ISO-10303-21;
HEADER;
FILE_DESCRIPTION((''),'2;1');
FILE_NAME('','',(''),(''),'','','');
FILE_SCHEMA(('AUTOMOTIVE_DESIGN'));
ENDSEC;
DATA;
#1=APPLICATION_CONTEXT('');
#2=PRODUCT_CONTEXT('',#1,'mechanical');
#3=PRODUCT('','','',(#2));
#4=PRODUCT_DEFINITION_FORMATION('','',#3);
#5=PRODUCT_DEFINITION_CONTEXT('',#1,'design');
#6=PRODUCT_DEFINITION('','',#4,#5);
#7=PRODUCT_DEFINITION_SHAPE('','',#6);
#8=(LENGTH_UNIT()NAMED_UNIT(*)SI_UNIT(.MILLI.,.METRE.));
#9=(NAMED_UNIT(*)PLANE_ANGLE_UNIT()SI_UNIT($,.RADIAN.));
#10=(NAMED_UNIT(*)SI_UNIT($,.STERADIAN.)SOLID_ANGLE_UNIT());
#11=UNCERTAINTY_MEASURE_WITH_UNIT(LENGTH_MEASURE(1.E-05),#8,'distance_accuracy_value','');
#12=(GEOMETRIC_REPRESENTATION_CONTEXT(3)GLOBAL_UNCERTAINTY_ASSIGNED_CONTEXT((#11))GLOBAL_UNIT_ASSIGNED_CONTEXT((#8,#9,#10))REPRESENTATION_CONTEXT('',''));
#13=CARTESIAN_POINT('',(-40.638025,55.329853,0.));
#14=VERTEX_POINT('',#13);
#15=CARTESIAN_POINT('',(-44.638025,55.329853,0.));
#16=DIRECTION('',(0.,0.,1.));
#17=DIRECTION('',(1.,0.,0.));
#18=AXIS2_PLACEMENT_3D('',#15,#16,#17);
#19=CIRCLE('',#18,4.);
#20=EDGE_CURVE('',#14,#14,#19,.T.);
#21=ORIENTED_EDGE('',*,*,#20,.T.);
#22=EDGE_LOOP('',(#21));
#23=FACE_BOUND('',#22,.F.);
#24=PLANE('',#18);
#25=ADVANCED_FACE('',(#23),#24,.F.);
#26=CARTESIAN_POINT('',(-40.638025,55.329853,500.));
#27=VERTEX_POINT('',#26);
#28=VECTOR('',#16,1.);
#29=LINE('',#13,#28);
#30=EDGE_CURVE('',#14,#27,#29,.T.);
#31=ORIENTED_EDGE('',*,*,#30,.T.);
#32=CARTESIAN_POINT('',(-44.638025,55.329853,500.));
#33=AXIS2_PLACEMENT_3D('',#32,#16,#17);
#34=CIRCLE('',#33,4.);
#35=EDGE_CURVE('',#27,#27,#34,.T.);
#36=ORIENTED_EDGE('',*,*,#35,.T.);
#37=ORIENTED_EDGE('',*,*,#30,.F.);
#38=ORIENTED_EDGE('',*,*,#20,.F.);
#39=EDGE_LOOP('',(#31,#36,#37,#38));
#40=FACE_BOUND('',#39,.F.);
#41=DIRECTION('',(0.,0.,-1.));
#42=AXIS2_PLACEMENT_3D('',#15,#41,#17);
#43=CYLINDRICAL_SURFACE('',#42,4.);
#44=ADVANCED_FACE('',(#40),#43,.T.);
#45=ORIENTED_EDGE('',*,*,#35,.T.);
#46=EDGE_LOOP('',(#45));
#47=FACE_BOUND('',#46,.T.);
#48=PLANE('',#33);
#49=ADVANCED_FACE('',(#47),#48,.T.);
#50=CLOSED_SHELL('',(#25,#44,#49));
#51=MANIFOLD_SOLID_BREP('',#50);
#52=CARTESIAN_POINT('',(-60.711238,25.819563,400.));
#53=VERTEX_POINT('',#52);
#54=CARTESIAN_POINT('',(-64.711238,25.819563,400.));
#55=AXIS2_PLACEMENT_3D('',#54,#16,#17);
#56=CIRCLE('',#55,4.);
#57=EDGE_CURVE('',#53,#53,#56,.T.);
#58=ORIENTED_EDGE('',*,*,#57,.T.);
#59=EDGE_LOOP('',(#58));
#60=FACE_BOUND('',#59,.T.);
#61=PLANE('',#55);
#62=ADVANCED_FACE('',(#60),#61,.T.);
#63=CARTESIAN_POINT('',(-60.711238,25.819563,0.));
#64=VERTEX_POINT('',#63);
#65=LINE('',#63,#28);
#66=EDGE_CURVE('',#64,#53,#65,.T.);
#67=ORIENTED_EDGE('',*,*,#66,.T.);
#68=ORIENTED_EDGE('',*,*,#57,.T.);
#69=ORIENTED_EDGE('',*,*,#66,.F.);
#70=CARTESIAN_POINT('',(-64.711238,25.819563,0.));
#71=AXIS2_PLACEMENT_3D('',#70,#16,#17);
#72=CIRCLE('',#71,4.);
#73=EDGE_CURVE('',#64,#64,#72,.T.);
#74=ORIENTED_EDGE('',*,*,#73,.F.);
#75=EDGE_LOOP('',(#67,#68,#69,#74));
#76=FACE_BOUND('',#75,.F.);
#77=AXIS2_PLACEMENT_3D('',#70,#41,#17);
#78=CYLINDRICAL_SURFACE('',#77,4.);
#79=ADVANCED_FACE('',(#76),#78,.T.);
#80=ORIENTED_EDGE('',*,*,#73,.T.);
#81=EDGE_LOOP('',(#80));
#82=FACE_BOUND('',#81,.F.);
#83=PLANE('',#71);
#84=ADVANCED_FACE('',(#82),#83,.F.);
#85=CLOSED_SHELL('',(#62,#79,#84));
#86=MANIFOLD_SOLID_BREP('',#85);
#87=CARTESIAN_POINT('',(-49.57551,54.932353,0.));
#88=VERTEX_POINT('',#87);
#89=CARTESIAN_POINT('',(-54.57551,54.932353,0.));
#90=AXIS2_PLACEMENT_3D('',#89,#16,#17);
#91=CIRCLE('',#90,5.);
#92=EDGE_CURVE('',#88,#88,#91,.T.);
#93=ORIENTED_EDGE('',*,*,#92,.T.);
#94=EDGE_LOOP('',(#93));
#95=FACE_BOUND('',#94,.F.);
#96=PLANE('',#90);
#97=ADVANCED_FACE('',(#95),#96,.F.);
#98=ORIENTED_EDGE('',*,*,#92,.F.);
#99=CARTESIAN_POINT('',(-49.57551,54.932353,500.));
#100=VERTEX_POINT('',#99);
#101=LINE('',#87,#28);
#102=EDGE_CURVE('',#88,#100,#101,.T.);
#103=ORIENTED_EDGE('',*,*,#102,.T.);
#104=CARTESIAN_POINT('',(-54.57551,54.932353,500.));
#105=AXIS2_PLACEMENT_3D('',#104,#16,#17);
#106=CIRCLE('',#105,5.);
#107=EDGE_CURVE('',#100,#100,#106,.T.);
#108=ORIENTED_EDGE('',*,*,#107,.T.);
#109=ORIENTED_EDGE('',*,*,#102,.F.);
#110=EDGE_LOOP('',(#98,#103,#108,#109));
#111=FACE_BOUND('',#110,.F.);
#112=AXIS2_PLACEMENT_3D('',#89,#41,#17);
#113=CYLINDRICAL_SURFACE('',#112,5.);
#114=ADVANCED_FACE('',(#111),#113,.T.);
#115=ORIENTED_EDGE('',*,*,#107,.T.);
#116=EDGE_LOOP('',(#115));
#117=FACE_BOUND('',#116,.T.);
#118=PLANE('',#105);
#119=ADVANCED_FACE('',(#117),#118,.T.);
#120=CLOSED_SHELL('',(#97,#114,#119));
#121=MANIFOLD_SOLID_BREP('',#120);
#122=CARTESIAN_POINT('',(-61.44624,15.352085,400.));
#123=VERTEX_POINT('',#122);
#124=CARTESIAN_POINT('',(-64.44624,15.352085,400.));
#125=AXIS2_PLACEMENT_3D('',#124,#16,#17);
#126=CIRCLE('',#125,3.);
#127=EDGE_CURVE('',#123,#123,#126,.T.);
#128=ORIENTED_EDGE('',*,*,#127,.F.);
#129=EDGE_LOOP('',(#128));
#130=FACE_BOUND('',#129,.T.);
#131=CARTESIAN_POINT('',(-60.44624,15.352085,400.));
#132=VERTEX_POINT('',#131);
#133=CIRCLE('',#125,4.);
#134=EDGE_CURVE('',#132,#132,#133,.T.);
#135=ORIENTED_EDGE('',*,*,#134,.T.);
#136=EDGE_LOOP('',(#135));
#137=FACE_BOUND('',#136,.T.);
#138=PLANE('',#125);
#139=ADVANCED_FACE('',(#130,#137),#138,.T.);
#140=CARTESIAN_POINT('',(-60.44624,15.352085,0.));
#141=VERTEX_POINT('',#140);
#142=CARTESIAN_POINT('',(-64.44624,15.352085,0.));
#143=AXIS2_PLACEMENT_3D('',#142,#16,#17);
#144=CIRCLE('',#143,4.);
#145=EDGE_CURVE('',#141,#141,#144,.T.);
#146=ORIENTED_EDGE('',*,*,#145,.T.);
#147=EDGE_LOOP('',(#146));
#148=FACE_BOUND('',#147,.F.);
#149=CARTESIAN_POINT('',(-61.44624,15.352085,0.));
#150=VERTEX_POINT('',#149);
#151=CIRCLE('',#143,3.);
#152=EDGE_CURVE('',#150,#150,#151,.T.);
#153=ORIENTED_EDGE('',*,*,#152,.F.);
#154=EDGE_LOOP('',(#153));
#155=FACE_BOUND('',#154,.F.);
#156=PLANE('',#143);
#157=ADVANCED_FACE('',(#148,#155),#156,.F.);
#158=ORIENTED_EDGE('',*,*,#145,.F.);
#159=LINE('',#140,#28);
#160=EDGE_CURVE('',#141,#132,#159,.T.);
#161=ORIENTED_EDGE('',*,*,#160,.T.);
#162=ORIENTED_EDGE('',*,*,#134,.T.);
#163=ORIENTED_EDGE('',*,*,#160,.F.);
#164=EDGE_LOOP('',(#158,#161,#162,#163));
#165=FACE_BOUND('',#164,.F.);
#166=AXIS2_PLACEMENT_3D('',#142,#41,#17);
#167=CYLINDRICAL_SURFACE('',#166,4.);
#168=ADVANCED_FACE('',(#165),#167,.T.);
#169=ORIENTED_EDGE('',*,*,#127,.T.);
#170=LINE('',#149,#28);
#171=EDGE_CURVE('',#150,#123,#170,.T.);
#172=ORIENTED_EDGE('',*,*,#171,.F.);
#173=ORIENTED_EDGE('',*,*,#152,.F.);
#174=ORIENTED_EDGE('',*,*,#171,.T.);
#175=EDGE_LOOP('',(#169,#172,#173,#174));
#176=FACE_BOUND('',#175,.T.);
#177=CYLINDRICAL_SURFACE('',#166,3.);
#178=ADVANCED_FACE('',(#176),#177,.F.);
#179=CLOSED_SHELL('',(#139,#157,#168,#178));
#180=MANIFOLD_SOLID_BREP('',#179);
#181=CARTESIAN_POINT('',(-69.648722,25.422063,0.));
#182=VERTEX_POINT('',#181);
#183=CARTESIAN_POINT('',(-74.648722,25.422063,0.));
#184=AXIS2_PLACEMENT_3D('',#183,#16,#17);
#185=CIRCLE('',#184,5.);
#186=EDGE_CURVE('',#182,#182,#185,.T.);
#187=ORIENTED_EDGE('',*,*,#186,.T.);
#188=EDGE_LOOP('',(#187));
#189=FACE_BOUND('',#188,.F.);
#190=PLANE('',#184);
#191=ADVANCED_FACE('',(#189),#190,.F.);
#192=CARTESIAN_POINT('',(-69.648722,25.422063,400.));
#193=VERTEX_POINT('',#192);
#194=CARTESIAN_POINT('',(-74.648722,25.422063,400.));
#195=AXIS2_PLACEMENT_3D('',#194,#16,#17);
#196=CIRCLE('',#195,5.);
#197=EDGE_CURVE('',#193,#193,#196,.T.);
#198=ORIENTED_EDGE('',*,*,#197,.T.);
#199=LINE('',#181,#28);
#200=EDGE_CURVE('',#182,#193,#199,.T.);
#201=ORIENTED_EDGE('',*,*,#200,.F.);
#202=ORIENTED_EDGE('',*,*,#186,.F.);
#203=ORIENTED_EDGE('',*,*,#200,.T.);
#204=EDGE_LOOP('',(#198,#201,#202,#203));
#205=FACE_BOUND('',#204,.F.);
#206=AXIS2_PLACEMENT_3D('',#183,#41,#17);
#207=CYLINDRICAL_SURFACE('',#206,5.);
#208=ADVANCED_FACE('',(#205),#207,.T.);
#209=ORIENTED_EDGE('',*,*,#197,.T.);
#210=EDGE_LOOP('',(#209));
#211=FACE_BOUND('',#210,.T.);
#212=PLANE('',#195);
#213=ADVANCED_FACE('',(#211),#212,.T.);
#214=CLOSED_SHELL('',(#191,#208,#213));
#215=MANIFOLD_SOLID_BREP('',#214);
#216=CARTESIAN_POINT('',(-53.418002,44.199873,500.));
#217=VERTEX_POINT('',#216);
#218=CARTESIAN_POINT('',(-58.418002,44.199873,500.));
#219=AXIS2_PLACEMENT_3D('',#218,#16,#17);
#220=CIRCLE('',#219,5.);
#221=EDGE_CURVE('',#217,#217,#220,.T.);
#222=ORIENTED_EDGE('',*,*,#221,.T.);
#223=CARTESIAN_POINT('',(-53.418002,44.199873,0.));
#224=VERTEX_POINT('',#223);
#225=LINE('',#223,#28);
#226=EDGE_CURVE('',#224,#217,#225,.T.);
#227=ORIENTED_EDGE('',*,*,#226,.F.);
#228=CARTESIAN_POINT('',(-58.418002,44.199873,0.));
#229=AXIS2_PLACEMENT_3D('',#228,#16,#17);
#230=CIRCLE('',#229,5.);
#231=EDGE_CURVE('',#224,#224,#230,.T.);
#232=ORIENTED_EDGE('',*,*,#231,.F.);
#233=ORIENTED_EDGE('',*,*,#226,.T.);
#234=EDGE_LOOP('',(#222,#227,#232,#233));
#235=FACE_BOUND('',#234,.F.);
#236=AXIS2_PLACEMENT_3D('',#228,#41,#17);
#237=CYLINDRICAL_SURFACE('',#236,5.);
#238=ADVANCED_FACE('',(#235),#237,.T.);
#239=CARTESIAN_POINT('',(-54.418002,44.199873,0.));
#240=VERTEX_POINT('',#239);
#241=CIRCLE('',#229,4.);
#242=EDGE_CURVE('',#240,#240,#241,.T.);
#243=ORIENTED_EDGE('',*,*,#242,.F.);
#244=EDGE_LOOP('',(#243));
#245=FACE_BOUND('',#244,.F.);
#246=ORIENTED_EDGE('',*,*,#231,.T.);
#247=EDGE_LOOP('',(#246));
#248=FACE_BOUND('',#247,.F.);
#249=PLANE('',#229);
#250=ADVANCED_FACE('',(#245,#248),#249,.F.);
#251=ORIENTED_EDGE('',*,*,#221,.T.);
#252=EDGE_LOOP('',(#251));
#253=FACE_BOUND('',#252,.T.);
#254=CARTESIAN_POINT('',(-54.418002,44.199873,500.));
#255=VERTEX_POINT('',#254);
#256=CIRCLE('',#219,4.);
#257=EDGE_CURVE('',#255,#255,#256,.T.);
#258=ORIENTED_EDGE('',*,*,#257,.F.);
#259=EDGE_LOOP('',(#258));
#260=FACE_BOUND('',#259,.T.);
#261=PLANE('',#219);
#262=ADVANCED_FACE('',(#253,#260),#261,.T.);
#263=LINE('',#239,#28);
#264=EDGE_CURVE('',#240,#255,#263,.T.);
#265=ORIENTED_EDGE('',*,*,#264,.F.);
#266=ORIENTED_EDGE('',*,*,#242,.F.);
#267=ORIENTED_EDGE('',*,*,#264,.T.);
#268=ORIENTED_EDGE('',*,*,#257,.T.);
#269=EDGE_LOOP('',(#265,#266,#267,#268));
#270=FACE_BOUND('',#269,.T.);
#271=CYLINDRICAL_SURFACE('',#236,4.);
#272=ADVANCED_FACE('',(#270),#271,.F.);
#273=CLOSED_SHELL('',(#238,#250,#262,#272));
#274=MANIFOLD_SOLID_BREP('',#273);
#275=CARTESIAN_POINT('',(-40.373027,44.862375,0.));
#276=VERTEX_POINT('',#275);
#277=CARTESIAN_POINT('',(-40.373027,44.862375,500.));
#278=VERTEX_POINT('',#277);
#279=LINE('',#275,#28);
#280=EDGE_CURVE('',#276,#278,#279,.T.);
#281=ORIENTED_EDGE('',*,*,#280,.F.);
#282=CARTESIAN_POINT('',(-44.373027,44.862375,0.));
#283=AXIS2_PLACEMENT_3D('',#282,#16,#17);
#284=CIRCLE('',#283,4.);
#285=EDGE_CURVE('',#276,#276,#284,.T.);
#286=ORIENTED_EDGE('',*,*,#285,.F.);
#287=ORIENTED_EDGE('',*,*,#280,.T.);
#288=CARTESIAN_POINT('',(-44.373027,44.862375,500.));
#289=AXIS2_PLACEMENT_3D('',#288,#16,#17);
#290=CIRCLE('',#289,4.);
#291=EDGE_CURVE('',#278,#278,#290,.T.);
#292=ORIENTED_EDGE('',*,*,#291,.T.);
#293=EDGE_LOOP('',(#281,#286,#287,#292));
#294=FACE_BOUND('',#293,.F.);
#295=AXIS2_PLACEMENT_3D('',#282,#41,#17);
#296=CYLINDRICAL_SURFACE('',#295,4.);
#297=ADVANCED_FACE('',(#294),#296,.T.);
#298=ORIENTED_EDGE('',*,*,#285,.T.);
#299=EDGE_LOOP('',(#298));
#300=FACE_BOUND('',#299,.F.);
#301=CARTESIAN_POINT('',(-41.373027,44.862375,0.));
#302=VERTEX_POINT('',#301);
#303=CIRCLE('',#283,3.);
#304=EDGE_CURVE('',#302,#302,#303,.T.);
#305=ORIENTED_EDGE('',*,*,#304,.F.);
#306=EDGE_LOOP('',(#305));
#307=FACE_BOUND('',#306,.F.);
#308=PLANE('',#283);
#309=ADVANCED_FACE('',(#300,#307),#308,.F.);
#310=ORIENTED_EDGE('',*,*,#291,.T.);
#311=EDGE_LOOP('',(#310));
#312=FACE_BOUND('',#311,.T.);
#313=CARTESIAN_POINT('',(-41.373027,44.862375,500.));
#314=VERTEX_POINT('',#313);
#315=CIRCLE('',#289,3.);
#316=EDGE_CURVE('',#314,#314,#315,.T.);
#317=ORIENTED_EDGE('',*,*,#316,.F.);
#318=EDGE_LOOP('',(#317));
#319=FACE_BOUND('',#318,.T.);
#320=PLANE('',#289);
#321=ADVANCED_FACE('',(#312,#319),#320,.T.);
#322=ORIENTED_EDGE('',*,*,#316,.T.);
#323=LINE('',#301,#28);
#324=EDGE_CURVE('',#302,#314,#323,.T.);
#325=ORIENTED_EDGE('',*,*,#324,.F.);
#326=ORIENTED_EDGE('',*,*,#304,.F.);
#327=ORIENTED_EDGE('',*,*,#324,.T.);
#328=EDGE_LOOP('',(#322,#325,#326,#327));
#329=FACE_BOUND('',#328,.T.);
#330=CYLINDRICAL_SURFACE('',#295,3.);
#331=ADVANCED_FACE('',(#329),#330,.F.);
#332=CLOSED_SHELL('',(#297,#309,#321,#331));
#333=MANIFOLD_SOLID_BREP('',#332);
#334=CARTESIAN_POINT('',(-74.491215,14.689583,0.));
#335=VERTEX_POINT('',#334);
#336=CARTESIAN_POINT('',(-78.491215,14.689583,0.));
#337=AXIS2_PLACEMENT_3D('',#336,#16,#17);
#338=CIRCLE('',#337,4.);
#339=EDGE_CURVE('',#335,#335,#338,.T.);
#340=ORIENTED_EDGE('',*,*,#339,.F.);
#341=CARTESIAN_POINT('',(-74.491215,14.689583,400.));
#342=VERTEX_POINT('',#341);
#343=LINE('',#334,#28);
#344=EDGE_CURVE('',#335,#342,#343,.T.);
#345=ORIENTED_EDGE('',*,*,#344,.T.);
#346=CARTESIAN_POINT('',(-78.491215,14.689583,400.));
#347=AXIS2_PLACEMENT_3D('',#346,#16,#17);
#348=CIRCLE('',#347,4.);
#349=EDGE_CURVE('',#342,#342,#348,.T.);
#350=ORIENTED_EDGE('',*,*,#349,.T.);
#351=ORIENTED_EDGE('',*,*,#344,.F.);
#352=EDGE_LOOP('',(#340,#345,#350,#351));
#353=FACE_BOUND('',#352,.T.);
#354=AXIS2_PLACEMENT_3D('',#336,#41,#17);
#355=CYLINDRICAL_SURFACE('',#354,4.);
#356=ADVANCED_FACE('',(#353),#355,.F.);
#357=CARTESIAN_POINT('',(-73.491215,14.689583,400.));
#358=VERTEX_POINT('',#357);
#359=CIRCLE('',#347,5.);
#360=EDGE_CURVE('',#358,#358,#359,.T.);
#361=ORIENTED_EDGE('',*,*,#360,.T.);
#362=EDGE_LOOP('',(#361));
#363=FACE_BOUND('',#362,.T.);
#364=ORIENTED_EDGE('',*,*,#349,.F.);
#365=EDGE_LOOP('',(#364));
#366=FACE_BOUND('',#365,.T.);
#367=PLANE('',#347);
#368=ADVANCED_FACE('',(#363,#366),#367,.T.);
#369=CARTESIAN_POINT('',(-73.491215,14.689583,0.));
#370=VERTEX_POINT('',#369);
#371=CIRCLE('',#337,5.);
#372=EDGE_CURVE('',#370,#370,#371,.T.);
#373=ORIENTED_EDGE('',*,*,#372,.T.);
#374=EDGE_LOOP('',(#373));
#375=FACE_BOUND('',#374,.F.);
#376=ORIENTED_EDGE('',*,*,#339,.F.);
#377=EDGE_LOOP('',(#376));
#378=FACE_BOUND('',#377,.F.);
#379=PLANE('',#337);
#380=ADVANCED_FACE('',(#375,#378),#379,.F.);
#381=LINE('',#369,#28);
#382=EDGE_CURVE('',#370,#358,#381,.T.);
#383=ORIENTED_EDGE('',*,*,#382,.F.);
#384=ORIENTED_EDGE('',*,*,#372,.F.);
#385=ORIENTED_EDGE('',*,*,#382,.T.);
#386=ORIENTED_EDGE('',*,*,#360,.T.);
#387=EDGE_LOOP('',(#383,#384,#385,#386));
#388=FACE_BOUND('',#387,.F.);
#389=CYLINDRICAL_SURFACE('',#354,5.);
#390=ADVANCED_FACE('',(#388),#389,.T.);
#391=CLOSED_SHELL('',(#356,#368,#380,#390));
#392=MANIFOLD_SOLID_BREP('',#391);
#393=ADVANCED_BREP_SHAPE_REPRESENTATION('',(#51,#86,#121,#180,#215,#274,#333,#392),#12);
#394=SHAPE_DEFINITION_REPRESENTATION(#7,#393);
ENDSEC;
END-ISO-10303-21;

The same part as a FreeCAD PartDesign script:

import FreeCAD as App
import Part
import Sketcher

doc = App.newDocument("Part")
body = doc.addObject("PartDesign::Body", "Body")
body.AllowCompound = True

# Sketch on XY plane
sketch1 = doc.addObject("Sketcher::SketchObject", "Sketch")
body.addObject(sketch1)
sketch1.AttachmentSupport = (doc.XY_Plane, [""])
sketch1.MapMode = "FlatFace"
sketch1.addGeometry(Part.Circle(App.Vector(-54.6, 54.9, 0), App.Vector(0, 0, 1), 5), False)
sketch1.addGeometry(Part.Circle(App.Vector(-44.6, 55.3, 0), App.Vector(0, 0, 1), 4), False)
sketch1.addGeometry(Part.Circle(App.Vector(-58.4, 44.2, 0), App.Vector(0, 0, 1), 5), False)
sketch1.addGeometry(Part.Circle(App.Vector(-58.4, 44.2, 0), App.Vector(0, 0, 1), 4), False)
sketch1.addGeometry(Part.Circle(App.Vector(-44.4, 44.9, 0), App.Vector(0, 0, 1), 4), False)
sketch1.addGeometry(Part.Circle(App.Vector(-44.4, 44.9, 0), App.Vector(0, 0, 1), 3), False)
sketch1.addConstraint(Sketcher.Constraint("Coincident", 3, 3, 2, 3))
sketch1.addConstraint(Sketcher.Constraint("Coincident", 5, 3, 4, 3))
sketch1.addConstraint(Sketcher.Constraint("Equal", 0, 2))
sketch1.addConstraint(Sketcher.Constraint("Equal", 1, 3))
sketch1.addConstraint(Sketcher.Constraint("Equal", 3, 4))
sketch1.addConstraint(Sketcher.Constraint("Diameter", 0, 10.0))
sketch1.addConstraint(Sketcher.Constraint("Diameter", 1, 8.0))
sketch1.addConstraint(Sketcher.Constraint("Diameter", 5, 6.0))
sketch1.addConstraint(Sketcher.Constraint("DistanceY", 0, 3, 1, 3, 0.3975))
sketch1.addConstraint(Sketcher.Constraint("DistanceX", 0, 3, -1, 1, 54.57551))
sketch1.addConstraint(Sketcher.Constraint("DistanceX", 2, 3, 0, 3, 3.842492))
sketch1.addConstraint(Sketcher.Constraint("DistanceY", 2, 3, 0, 3, 10.73248))
sketch1.addConstraint(Sketcher.Constraint("DistanceY", -1, 1, 0, 3, 54.932353))
sketch1.addConstraint(Sketcher.Constraint("DistanceX", 1, 3, -1, 1, 44.638025))
sketch1.addConstraint(Sketcher.Constraint("DistanceX", 4, 3, -1, 1, 44.373027))
sketch1.addConstraint(Sketcher.Constraint("DistanceY", -1, 1, 4, 3, 44.862375))
pad1 = doc.addObject("PartDesign::Pad", "Pad")
body.addObject(pad1)
pad1.Profile = sketch1
pad1.Length = 500
body2 = doc.addObject("PartDesign::Body", "Body001")
body2.AllowCompound = True

# Sketch on XY plane
sketch2 = doc.addObject("Sketcher::SketchObject", "Sketch001")
body2.addObject(sketch2)
sketch2.AttachmentSupport = (doc.getObject("XY_Plane001"), [""])
sketch2.MapMode = "FlatFace"
sketch2.addGeometry(Part.Circle(App.Vector(-74.6, 25.4, 0), App.Vector(0, 0, 1), 5), False)
sketch2.addGeometry(Part.Circle(App.Vector(-64.7, 25.8, 0), App.Vector(0, 0, 1), 4), False)
sketch2.addGeometry(Part.Circle(App.Vector(-78.5, 14.7, 0), App.Vector(0, 0, 1), 5), False)
sketch2.addGeometry(Part.Circle(App.Vector(-78.5, 14.7, 0), App.Vector(0, 0, 1), 4), False)
sketch2.addGeometry(Part.Circle(App.Vector(-64.4, 15.4, 0), App.Vector(0, 0, 1), 4), False)
sketch2.addGeometry(Part.Circle(App.Vector(-64.4, 15.4, 0), App.Vector(0, 0, 1), 3), False)
sketch2.addConstraint(Sketcher.Constraint("Coincident", 3, 3, 2, 3))
sketch2.addConstraint(Sketcher.Constraint("Coincident", 5, 3, 4, 3))
sketch2.addConstraint(Sketcher.Constraint("Equal", 0, 2))
sketch2.addConstraint(Sketcher.Constraint("Equal", 1, 3))
sketch2.addConstraint(Sketcher.Constraint("Equal", 3, 4))
sketch2.addConstraint(Sketcher.Constraint("Diameter", 0, 10.0))
sketch2.addConstraint(Sketcher.Constraint("Diameter", 1, 8.0))
sketch2.addConstraint(Sketcher.Constraint("Diameter", 5, 6.0))
sketch2.addConstraint(Sketcher.Constraint("DistanceY", 0, 3, 1, 3, 0.3975))
sketch2.addConstraint(Sketcher.Constraint("DistanceY", 2, 3, 4, 3, 0.662502))
sketch2.addConstraint(Sketcher.Constraint("DistanceX", 4, 3, -1, 1, 64.44624))
sketch2.addConstraint(Sketcher.Constraint("DistanceY", 2, 3, 0, 3, 10.73248))
sketch2.addConstraint(Sketcher.Constraint("DistanceX", 0, 3, -1, 1, 74.648722))
sketch2.addConstraint(Sketcher.Constraint("DistanceY", -1, 1, 0, 3, 25.422063))
sketch2.addConstraint(Sketcher.Constraint("DistanceX", 1, 3, -1, 1, 64.711238))
sketch2.addConstraint(Sketcher.Constraint("DistanceX", 2, 3, -1, 1, 78.491215))
pad2 = doc.addObject("PartDesign::Pad", "Pad001")
body2.addObject(pad2)
pad2.Profile = sketch2
pad2.Length = 400

doc.recompute()
